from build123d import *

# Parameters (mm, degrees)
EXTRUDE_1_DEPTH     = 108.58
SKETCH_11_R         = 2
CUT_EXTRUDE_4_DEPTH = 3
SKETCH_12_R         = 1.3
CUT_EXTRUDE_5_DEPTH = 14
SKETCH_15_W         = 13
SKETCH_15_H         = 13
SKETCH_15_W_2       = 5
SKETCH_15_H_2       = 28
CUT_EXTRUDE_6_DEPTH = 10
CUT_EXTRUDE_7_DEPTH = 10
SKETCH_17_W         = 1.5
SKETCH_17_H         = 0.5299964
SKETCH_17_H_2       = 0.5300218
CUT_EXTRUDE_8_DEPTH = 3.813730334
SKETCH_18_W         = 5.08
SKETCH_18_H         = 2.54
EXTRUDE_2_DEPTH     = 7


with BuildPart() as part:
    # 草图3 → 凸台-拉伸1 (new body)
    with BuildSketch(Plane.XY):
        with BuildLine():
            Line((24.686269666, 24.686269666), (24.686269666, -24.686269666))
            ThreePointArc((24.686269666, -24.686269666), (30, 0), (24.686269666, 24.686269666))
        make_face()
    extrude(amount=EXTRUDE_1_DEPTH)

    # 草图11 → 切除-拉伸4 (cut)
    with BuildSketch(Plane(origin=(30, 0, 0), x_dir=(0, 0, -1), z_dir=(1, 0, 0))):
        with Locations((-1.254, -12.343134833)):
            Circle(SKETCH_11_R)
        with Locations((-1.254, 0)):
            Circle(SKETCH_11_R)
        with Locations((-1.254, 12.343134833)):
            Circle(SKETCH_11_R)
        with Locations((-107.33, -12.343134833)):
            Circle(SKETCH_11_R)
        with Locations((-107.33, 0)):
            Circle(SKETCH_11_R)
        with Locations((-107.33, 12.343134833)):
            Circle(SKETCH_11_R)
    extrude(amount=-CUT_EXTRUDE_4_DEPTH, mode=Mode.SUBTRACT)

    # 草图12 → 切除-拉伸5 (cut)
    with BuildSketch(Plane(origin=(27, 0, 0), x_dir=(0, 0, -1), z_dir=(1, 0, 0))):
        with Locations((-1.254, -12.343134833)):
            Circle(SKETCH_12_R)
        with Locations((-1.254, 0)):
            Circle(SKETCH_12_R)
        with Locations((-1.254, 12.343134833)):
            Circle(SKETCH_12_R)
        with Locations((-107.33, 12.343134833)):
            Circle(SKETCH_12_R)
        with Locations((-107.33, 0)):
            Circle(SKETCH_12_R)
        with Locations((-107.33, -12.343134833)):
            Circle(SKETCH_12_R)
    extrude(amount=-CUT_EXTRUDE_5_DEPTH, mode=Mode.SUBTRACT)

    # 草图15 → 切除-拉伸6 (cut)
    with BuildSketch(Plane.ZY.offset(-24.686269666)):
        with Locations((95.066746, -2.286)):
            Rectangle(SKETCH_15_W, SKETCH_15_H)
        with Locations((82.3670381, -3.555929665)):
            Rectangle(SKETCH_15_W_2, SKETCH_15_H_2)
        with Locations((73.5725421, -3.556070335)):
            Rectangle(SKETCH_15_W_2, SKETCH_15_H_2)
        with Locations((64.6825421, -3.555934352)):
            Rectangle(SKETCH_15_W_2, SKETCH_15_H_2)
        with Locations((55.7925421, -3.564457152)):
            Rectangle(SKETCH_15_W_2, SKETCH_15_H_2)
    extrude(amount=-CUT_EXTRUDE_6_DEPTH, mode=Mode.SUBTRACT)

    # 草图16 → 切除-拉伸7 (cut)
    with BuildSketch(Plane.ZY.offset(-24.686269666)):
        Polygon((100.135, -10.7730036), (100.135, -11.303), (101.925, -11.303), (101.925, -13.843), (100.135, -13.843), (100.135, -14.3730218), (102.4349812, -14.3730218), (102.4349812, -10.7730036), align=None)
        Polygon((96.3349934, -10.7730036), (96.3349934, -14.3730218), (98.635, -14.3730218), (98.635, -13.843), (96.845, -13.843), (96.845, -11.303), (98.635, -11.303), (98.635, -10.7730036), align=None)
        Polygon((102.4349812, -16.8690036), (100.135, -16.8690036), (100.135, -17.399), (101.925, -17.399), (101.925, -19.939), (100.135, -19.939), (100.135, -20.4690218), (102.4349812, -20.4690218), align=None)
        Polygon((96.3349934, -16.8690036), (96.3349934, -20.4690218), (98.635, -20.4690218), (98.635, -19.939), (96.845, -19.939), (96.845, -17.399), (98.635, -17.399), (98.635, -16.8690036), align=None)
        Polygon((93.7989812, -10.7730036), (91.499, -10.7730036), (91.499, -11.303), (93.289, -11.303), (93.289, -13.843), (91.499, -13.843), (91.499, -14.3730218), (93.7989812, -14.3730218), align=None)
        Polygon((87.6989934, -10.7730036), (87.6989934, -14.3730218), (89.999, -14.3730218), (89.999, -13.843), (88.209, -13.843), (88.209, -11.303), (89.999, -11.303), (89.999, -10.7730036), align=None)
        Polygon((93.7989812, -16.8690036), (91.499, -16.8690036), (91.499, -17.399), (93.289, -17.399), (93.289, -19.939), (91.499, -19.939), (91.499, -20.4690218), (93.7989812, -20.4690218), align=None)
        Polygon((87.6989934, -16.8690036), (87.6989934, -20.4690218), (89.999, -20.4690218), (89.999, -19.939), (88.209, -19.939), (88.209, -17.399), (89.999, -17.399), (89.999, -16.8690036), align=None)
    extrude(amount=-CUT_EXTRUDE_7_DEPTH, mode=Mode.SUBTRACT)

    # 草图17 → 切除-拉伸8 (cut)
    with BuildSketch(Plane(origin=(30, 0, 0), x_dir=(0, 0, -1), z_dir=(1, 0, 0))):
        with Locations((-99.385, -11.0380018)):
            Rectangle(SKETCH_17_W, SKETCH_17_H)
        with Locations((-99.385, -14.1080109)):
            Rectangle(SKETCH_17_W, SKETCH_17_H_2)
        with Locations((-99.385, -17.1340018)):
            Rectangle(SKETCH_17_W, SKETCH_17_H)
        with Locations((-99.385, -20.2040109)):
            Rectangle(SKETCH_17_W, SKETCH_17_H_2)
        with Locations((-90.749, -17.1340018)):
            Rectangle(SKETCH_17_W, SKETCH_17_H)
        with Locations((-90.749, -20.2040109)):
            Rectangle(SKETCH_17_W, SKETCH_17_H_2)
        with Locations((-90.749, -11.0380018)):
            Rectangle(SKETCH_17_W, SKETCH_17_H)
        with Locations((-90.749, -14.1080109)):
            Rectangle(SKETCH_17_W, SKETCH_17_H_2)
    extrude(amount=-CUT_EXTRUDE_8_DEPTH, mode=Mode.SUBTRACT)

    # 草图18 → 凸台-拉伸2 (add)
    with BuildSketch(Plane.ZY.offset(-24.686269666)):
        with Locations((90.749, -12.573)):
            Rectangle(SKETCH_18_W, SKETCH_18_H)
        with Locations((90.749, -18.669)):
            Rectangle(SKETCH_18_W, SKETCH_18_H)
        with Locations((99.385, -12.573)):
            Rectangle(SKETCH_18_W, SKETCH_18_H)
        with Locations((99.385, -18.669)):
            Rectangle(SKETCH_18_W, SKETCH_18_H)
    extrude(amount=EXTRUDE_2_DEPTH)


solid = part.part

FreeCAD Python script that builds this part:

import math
import FreeCAD as App
import Part
import Sketcher

V = App.Vector
Q = App.Units.Quantity


def add_polygon(sketch, points):
    """Adds a closed chain of lines whose ends are joined by coincident constraints."""
    first, n = sketch.GeometryCount, len(points)
    for a, b in zip(points, points[1:] + points[:1]):
        sketch.addGeometry(Part.LineSegment(App.Vector(*a, 0), App.Vector(*b, 0)), False)
    for i in range(n):
        sketch.addConstraint(Sketcher.Constraint("Coincident", first + i, 2, first + (i + 1) % n, 1))

doc = App.newDocument("Part")
params = doc.addObject("Spreadsheet::Sheet", "Params")
for row, (alias, value) in enumerate([
    ("sketch1_radius", "60 mm"),
    ("pad1_length", "108.58 mm"),
    ("sketch2_diameter", "4 mm"),
    ("pocket1_length", "3 mm"),
    ("sketch3_diameter", "2.6 mm"),
    ("pocket2_length", "14 mm"),
    ("sketch4_width", "13 mm"),
    ("sketch4_width2", "28 mm"),
    ("sketch4_height", "5 mm"),
    ("pocket3_length", "10 mm"),
    ("sketch5_width", "2.54 mm"),
    ("sketch5_height", "1.79 mm"),
    ("pocket4_length", "10 mm"),
    ("sketch6_height", "1.5 mm"),
    ("pocket5_length", "3.81373 mm"),
    ("sketch7_width", "2.54 mm"),
    ("sketch7_height", "5.08 mm"),
    ("pad2_length", "7 mm"),
], start=1):
    params.set(f"A{row}", alias)
    params.set(f"B{row}", "=" + value)
    params.setAlias(f"B{row}", alias)

body = doc.addObject("PartDesign::Body", "Body")

sketch1 = body.newObject("Sketcher::SketchObject", "Sketch")
sketch1.AttachmentSupport = (doc.getObject("XY_Plane"), [""])
sketch1.MapMode = "FlatFace"
sketch1.addGeometry(Part.LineSegment(V(25, 25, 0), V(25, -25, 0)), False)
sketch1.addGeometry(Part.ArcOfCircle(Part.Circle(V(-30, 0, 0), V(0, 0, 1), 60), math.radians(-24), math.radians(24)), False)
sketch1.addConstraint(Sketcher.Constraint("Coincident", 0, 1, 1, 2))
sketch1.addConstraint(Sketcher.Constraint("Coincident", 1, 1, 0, 2))
sketch1.addConstraint(Sketcher.Constraint("Vertical", 0))
sketch1.addConstraint(Sketcher.Constraint("PointOnObject", 1, 3, -1))
sketch1.addConstraint(Sketcher.Constraint("Radius", 1, Q("60 mm")))
sketch1.addConstraint(Sketcher.Constraint("DistanceX", 1, 3, -1, 1, Q("30 mm")))
sketch1.addConstraint(Sketcher.Constraint("DistanceY", 0, 2, 0, 1, Q("49.372539 mm")))
sketch1.setExpression("Constraints[4]", "Params.sketch1_radius")
pad1 = body.newObject("PartDesign::Pad", "Pad")
pad1.Profile = sketch1
pad1.setExpression("Length", "Params.pad1_length")

sketch2 = body.newObject("Sketcher::SketchObject", "Sketch001")
sketch2.AttachmentSupport = (doc.getObject("YZ_Plane"), [""])
sketch2.MapMode = "FlatFace"
sketch2.AttachmentOffset = App.Placement(V(0, 0, 30), App.Rotation())
sketch2.addGeometry(Part.Circle(V(-12.3, 1.3, 0), V(0, 0, 1), 2), False)
sketch2.addGeometry(Part.Circle(V(0, 1.3, 0), V(0, 0, 1), 2), False)
sketch2.addGeometry(Part.Circle(V(12.3, 1.3, 0), V(0, 0, 1), 2), False)
sketch2.addGeometry(Part.Circle(V(-12.3, 107.3, 0), V(0, 0, 1), 2), False)
sketch2.addGeometry(Part.Circle(V(0, 107.3, 0), V(0, 0, 1), 2), False)
sketch2.addGeometry(Part.Circle(V(12.3, 107.3, 0), V(0, 0, 1), 2), False)
sketch2.addConstraint(Sketcher.Constraint("Equal", 0, 1))
sketch2.addConstraint(Sketcher.Constraint("Equal", 1, 2))
sketch2.addConstraint(Sketcher.Constraint("Equal", 2, 3))
sketch2.addConstraint(Sketcher.Constraint("Equal", 3, 4))
sketch2.addConstraint(Sketcher.Constraint("Equal", 4, 5))
sketch2.addConstraint(Sketcher.Constraint("Symmetric", 0, 3, 2, 3, -2))
sketch2.addConstraint(Sketcher.Constraint("Symmetric", 3, 3, 5, 3, -2))
sketch2.addConstraint(Sketcher.Constraint("PointOnObject", 1, 3, -2))
sketch2.addConstraint(Sketcher.Constraint("PointOnObject", 4, 3, -2))
sketch2.addConstraint(Sketcher.Constraint("Horizontal", 0, 3, 1, 3))
sketch2.addConstraint(Sketcher.Constraint("Horizontal", 3, 3, 4, 3))
sketch2.addConstraint(Sketcher.Constraint("Vertical", 0, 3, 3, 3))
sketch2.addConstraint(Sketcher.Constraint("Diameter", 0, Q("4 mm")))
sketch2.addConstraint(Sketcher.Constraint("DistanceY", -1, 1, 3, 3, Q("107.33 mm")))
sketch2.addConstraint(Sketcher.Constraint("DistanceY", -1, 1, 0, 3, Q("1.254 mm")))
sketch2.addConstraint(Sketcher.Constraint("DistanceX", 0, 3, 2, 3, Q("24.68627 mm")))
sketch2.setExpression("Constraints[12]", "Params.sketch2_diameter")
pocket1 = body.newObject("PartDesign::Pocket", "Pocket")
pocket1.Profile = sketch2
pocket1.setExpression("Length", "Params.pocket1_length")

sketch3 = body.newObject("Sketcher::SketchObject", "Sketch002")
sketch3.AttachmentSupport = (doc.getObject("YZ_Plane"), [""])
sketch3.MapMode = "FlatFace"
sketch3.AttachmentOffset = App.Placement(V(0, 0, 27), App.Rotation())
sketch3.addGeometry(Part.Circle(V(-12.3, 1.3, 0), V(0, 0, 1), 1.3), False)
sketch3.addGeometry(Part.Circle(V(0, 1.3, 0), V(0, 0, 1), 1.3), False)
sketch3.addGeometry(Part.Circle(V(12.3, 1.3, 0), V(0, 0, 1), 1.3), False)
sketch3.addGeometry(Part.Circle(V(12.3, 107.3, 0), V(0, 0, 1), 1.3), False)
sketch3.addGeometry(Part.Circle(V(0, 107.3, 0), V(0, 0, 1), 1.3), False)
sketch3.addGeometry(Part.Circle(V(-12.3, 107.3, 0), V(0, 0, 1), 1.3), False)
sketch3.addConstraint(Sketcher.Constraint("Equal", 0, 1))
sketch3.addConstraint(Sketcher.Constraint("Equal", 1, 2))
sketch3.addConstraint(Sketcher.Constraint("Equal", 2, 3))
sketch3.addConstraint(Sketcher.Constraint("Equal", 3, 4))
sketch3.addConstraint(Sketcher.Constraint("Equal", 4, 5))
sketch3.addConstraint(Sketcher.Constraint("Symmetric", 0, 3, 2, 3, -2))
sketch3.addConstraint(Sketcher.Constraint("Symmetric", 3, 3, 5, 3, -2))
sketch3.addConstraint(Sketcher.Constraint("PointOnObject", 1, 3, -2))
sketch3.addConstraint(Sketcher.Constraint("PointOnObject", 4, 3, -2))
sketch3.addConstraint(Sketcher.Constraint("Horizontal", 0, 3, 1, 3))
sketch3.addConstraint(Sketcher.Constraint("Horizontal", 3, 3, 4, 3))
sketch3.addConstraint(Sketcher.Constraint("Vertical", 2, 3, 3, 3))
sketch3.addConstraint(Sketcher.Constraint("Diameter", 0, Q("2.6 mm")))
sketch3.addConstraint(Sketcher.Constraint("DistanceY", -1, 1, 3, 3, Q("107.33 mm")))
sketch3.addConstraint(Sketcher.Constraint("DistanceY", -1, 1, 0, 3, Q("1.254 mm")))
sketch3.addConstraint(Sketcher.Constraint("DistanceX", 0, 3, 2, 3, Q("24.68627 mm")))
sketch3.setExpression("Constraints[12]", "Params.sketch3_diameter")
pocket2 = body.newObject("PartDesign::Pocket", "Pocket001")
pocket2.Profile = sketch3
pocket2.setExpression("Length", "Params.pocket2_length")

sketch4 = body.newObject("Sketcher::SketchObject", "Sketch003")
sketch4.AttachmentSupport = (doc.getObject("YZ_Plane"), [""])
sketch4.MapMode = "FlatFace"
sketch4.AttachmentOffset = App.Placement(V(0, 0, 24.68627), App.Rotation())
add_polygon(sketch4, [(4, 89), (-9, 89), (-9, 102), (4, 102)])
add_polygon(sketch4, [(10, 80), (-18, 80), (-18, 85), (10, 85)])
add_polygon(sketch4, [(10, 71), (-18, 71), (-18, 76), (10, 76)])
add_polygon(sketch4, [(10, 62), (-18, 62), (-18, 67), (10, 67)])
add_polygon(sketch4, [(10, 53), (-18, 53), (-18, 58), (10, 58)])
sketch4.addConstraint(Sketcher.Constraint("Horizontal", 0))
sketch4.addConstraint(Sketcher.Constraint("Vertical", 1))
sketch4.addConstraint(Sketcher.Constraint("Horizontal", 2))
sketch4.addConstraint(Sketcher.Constraint("Vertical", 3))
sketch4.addConstraint(Sketcher.Constraint("Horizontal", 4))
sketch4.addConstraint(Sketcher.Constraint("Vertical", 5))
sketch4.addConstraint(Sketcher.Constraint("Horizontal", 6))
sketch4.addConstraint(Sketcher.Constraint("Vertical", 7))
sketch4.addConstraint(Sketcher.Constraint("Horizontal", 8))
sketch4.addConstraint(Sketcher.Constraint("Vertical", 9))
sketch4.addConstraint(Sketcher.Constraint("Horizontal", 10))
sketch4.addConstraint(Sketcher.Constraint("Vertical", 11))
sketch4.addConstraint(Sketcher.Constraint("Horizontal", 12))
sketch4.addConstraint(Sketcher.Constraint("Vertical", 13))
sketch4.addConstraint(Sketcher.Constraint("Horizontal", 14))
sketch4.addConstraint(Sketcher.Constraint("Vertical", 15))
sketch4.addConstraint(Sketcher.Constraint("Horizontal", 16))
sketch4.addConstraint(Sketcher.Constraint("Vertical", 17))
sketch4.addConstraint(Sketcher.Constraint("Horizontal", 18))
sketch4.addConstraint(Sketcher.Constraint("Vertical", 19))
sketch4.addConstraint(Sketcher.Constraint("Equal", 6, 8))
sketch4.addConstraint(Sketcher.Constraint("Equal", 10, 12))
sketch4.addConstraint(Sketcher.Constraint("Equal", 14, 16))
sketch4.addConstraint(Sketcher.Constraint("Equal", 2, 1))
sketch4.addConstraint(Sketcher.Constraint("Equal", 7, 9))
sketch4.addConstraint(Sketcher.Constraint("Equal", 11, 13))
sketch4.addConstraint(Sketcher.Constraint("Equal", 15, 17))
sketch4.addConstraint(Sketcher.Constraint("DistanceX", 0, 2, 0, 1, Q("13 mm")))
sketch4.addConstraint(Sketcher.Constraint("DistanceX", 4, 2, 4, 1, Q("28 mm")))
sketch4.addConstraint(Sketcher.Constraint("DistanceY", 5, 1, 5, 2, Q("5 mm")))
sketch4.addConstraint(Sketcher.Constraint("DistanceY", 12, 2, 8, 2, Q("8.89 mm")))
sketch4.addConstraint(Sketcher.Constraint("DistanceY", 16, 2, 12, 2, Q("8.89 mm")))
sketch4.addConstraint(Sketcher.Constraint("DistanceX", 0, 2, -1, 1, Q("8.786 mm")))
sketch4.addConstraint(Sketcher.Constraint("DistanceX", 4, 2, -1, 1, Q("17.55593 mm")))
sketch4.addConstraint(Sketcher.Constraint("DistanceY", -1, 1, 4, 2, Q("79.867038 mm")))
sketch4.addConstraint(Sketcher.Constraint("DistanceX", 8, 2, -1, 1, Q("17.55607 mm")))
sketch4.addConstraint(Sketcher.Constraint("DistanceY", -1, 1, 0, 2, Q("88.566746 mm")))
sketch4.addConstraint(Sketcher.Constraint("DistanceY", -1, 1, 8, 2, Q("71.072542 mm")))
sketch4.addConstraint(Sketcher.Constraint("DistanceX", 12, 2, -1, 1, Q("17.555934 mm")))
sketch4.addConstraint(Sketcher.Constraint("DistanceX", 16, 2, -1, 1, Q("17.564457 mm")))
sketch4.setExpression("Constraints[47]", "Params.sketch4_width")
sketch4.setExpression("Constraints[48]", "Params.sketch4_width2")
sketch4.setExpression("Constraints[49]", "Params.sketch4_height")
pocket3 = body.newObject("PartDesign::Pocket", "Pocket002")
pocket3.Profile = sketch4
pocket3.setExpression("Length", "Params.pocket3_length")
pocket3.Reversed = True

sketch5 = body.newObject("Sketcher::SketchObject", "Sketch004")
sketch5.AttachmentSupport = (doc.getObject("YZ_Plane"), [""])
sketch5.MapMode = "FlatFace"
sketch5.AttachmentOffset = App.Placement(V(0, 0, 24.68627), App.Rotation())
add_polygon(sketch5, [(-10.8, 100.1), (-11.3, 100.1), (-11.3, 101.9), (-13.8, 101.9), (-13.8, 100.1), (-14.4, 100.1), (-14.4, 102.4), (-10.8, 102.4)])
add_polygon(sketch5, [(-10.8, 96.3), (-14.4, 96.3), (-14.4, 98.6), (-13.8, 98.6), (-13.8, 96.8), (-11.3, 96.8), (-11.3, 98.6), (-10.8, 98.6)])
add_polygon(sketch5, [(-16.9, 102.4), (-16.9, 100.1), (-17.4, 100.1), (-17.4, 101.9), (-19.9, 101.9), (-19.9, 100.1), (-20.5, 100.1), (-20.5, 102.4)])
add_polygon(sketch5, [(-16.9, 96.3), (-20.5, 96.3), (-20.5, 98.6), (-19.9, 98.6), (-19.9, 96.8), (-17.4, 96.8), (-17.4, 98.6), (-16.9, 98.6)])
add_polygon(sketch5, [(-10.8, 93.8), (-10.8, 91.5), (-11.3, 91.5), (-11.3, 93.3), (-13.8, 93.3), (-13.8, 91.5), (-14.4, 91.5), (-14.4, 93.8)])
add_polygon(sketch5, [(-10.8, 87.7), (-14.4, 87.7), (-14.4, 90), (-13.8, 90), (-13.8, 88.2), (-11.3, 88.2), (-11.3, 90), (-10.8, 90)])
add_polygon(sketch5, [(-16.9, 93.8), (-16.9, 91.5), (-17.4, 91.5), (-17.4, 93.3), (-19.9, 93.3), (-19.9, 91.5), (-20.5, 91.5), (-20.5, 93.8)])
add_polygon(sketch5, [(-16.9, 87.7), (-20.5, 87.7), (-20.5, 90), (-19.9, 90), (-19.9, 88.2), (-17.4, 88.2), (-17.4, 90), (-16.9, 90)])
sketch5.addConstraint(Sketcher.Constraint("Horizontal", 0))
sketch5.addConstraint(Sketcher.Constraint("Vertical", 1))
sketch5.addConstraint(Sketcher.Constraint("Horizontal", 2))
sketch5.addConstraint(Sketcher.Constraint("Vertical", 3))
sketch5.addConstraint(Sketcher.Constraint("Horizontal", 4))
sketch5.addConstraint(Sketcher.Constraint("Vertical", 5))
sketch5.addConstraint(Sketcher.Constraint("Horizontal", 6))
sketch5.addConstraint(Sketcher.Constraint("Vertical", 7))
sketch5.addConstraint(Sketcher.Constraint("Horizontal", 8))
sketch5.addConstraint(Sketcher.Constraint("Vertical", 9))
sketch5.addConstraint(Sketcher.Constraint("Horizontal", 10))
sketch5.addConstraint(Sketcher.Constraint("Vertical", 11))
sketch5.addConstraint(Sketcher.Constraint("Horizontal", 12))
sketch5.addConstraint(Sketcher.Constraint("Vertical", 13))
sketch5.addConstraint(Sketcher.Constraint("Horizontal", 14))
sketch5.addConstraint(Sketcher.Constraint("Vertical", 15))
sketch5.addConstraint(Sketcher.Constraint("Vertical", 16))
sketch5.addConstraint(Sketcher.Constraint("Horizontal", 17))
sketch5.addConstraint(Sketcher.Constraint("Vertical", 18))
sketch5.addConstraint(Sketcher.Constraint("Horizontal", 19))
sketch5.addConstraint(Sketcher.Constraint("Vertical", 20))
sketch5.addConstraint(Sketcher.Constraint("Horizontal", 21))
sketch5.addConstraint(Sketcher.Constraint("Vertical", 22))
sketch5.addConstraint(Sketcher.Constraint("Horizontal", 23))
sketch5.addConstraint(Sketcher.Constraint("Horizontal", 24))
sketch5.addConstraint(Sketcher.Constraint("Vertical", 25))
sketch5.addConstraint(Sketcher.Constraint("Horizontal", 26))
sketch5.addConstraint(Sketcher.Constraint("Vertical", 27))
sketch5.addConstraint(Sketcher.Constraint("Horizontal", 28))
sketch5.addConstraint(Sketcher.Constraint("Vertical", 29))
sketch5.addConstraint(Sketcher.Constraint("Horizontal", 30))
sketch5.addConstraint(Sketcher.Constraint("Vertical", 31))
sketch5.addConstraint(Sketcher.Constraint("Vertical", 32))
sketch5.addConstraint(Sketcher.Constraint("Horizontal", 33))
sketch5.addConstraint(Sketcher.Constraint("Vertical", 34))
sketch5.addConstraint(Sketcher.Constraint("Horizontal", 35))
sketch5.addConstraint(Sketcher.Constraint("Vertical", 36))
sketch5.addConstraint(Sketcher.Constraint("Horizontal", 37))
sketch5.addConstraint(Sketcher.Constraint("Vertical", 38))
sketch5.addConstraint(Sketcher.Constraint("Horizontal", 39))
sketch5.addConstraint(Sketcher.Constraint("Horizontal", 40))
sketch5.addConstraint(Sketcher.Constraint("Vertical", 41))
sketch5.addConstraint(Sketcher.Constraint("Horizontal", 42))
sketch5.addConstraint(Sketcher.Constraint("Vertical", 43))
sketch5.addConstraint(Sketcher.Constraint("Horizontal", 44))
sketch5.addConstraint(Sketcher.Constraint("Vertical", 45))
sketch5.addConstraint(Sketcher.Constraint("Horizontal", 46))
sketch5.addConstraint(Sketcher.Constraint("Vertical", 47))
sketch5.addConstraint(Sketcher.Constraint("Vertical", 48))
sketch5.addConstraint(Sketcher.Constraint("Horizontal", 49))
sketch5.addConstraint(Sketcher.Constraint("Vertical", 50))
sketch5.addConstraint(Sketcher.Constraint("Horizontal", 51))
sketch5.addConstraint(Sketcher.Constraint("Vertical", 52))
sketch5.addConstraint(Sketcher.Constraint("Horizontal", 53))
sketch5.addConstraint(Sketcher.Constraint("Vertical", 54))
sketch5.addConstraint(Sketcher.Constraint("Horizontal", 55))
sketch5.addConstraint(Sketcher.Constraint("Horizontal", 56))
sketch5.addConstraint(Sketcher.Constraint("Vertical", 57))
sketch5.addConstraint(Sketcher.Constraint("Horizontal", 58))
sketch5.addConstraint(Sketcher.Constraint("Vertical", 59))
sketch5.addConstraint(Sketcher.Constraint("Horizontal", 60))
sketch5.addConstraint(Sketcher.Constraint("Vertical", 61))
sketch5.addConstraint(Sketcher.Constraint("Horizontal", 62))
sketch5.addConstraint(Sketcher.Constraint("Vertical", 63))
sketch5.addConstraint(Sketcher.Constraint("Horizontal", 0, 2, 3, 2))
sketch5.addConstraint(Sketcher.Constraint("Horizontal", 10, 2, 13, 2))
sketch5.addConstraint(Sketcher.Constraint("Horizontal", 7, 2, 16, 2))
sketch5.addConstraint(Sketcher.Constraint("Horizontal", 2, 2, 18, 2))
sketch5.addConstraint(Sketcher.Constraint("Horizontal", 17, 2, 20, 2))
sketch5.addConstraint(Sketcher.Constraint("Horizontal", 6, 2, 22, 2))
sketch5.addConstraint(Sketcher.Constraint("Horizontal", 15, 2, 24, 2))
sketch5.addConstraint(Sketcher.Constraint("Horizontal", 14, 2, 25, 2))
sketch5.addConstraint(Sketcher.Constraint("Horizontal", 12, 2, 27, 2))
sketch5.addConstraint(Sketcher.Constraint("Horizontal", 26, 2, 29, 2))
sketch5.addConstraint(Sketcher.Constraint("Horizontal", 33, 2, 36, 2))
sketch5.addConstraint(Sketcher.Constraint("Horizontal", 42, 2, 45, 2))
sketch5.addConstraint(Sketcher.Constraint("Horizontal", 37, 2, 48, 2))
sketch5.addConstraint(Sketcher.Constraint("Horizontal", 35, 2, 50, 2))
sketch5.addConstraint(Sketcher.Constraint("Horizontal", 49, 2, 52, 2))
sketch5.addConstraint(Sketcher.Constraint("Horizontal", 39, 2, 54, 2))
sketch5.addConstraint(Sketcher.Constraint("Horizontal", 47, 2, 56, 2))
sketch5.addConstraint(Sketcher.Constraint("Horizontal", 46, 2, 57, 2))
sketch5.addConstraint(Sketcher.Constraint("Horizontal", 44, 2, 59, 2))
sketch5.addConstraint(Sketcher.Constraint("Horizontal", 58, 2, 61, 2))
sketch5.addConstraint(Sketcher.Constraint("Vertical", 5, 2, 8, 2))
sketch5.addConstraint(Sketcher.Constraint("Vertical", 3, 2, 10, 2))
sketch5.addConstraint(Sketcher.Constraint("Vertical", 1, 2, 12, 2))
sketch5.addConstraint(Sketcher.Constraint("Vertical", 7, 2, 14, 2))
sketch5.addConstraint(Sketcher.Constraint("Vertical", 22, 2, 24, 2))
sketch5.addConstraint(Sketcher.Constraint("Vertical", 20, 2, 26, 2))
sketch5.addConstraint(Sketcher.Constraint("Vertical", 18, 2, 28, 2))
sketch5.addConstraint(Sketcher.Constraint("Vertical", 23, 2, 30, 2))
sketch5.addConstraint(Sketcher.Constraint("Vertical", 15, 2, 32, 2))
sketch5.addConstraint(Sketcher.Constraint("Vertical", 13, 2, 33, 2))
sketch5.addConstraint(Sketcher.Constraint("Vertical", 11, 2, 35, 2))
sketch5.addConstraint(Sketcher.Constraint("Vertical", 9, 2, 37, 2))
sketch5.addConstraint(Sketcher.Constraint("Vertical", 38, 2, 40, 2))
sketch5.addConstraint(Sketcher.Constraint("Vertical", 36, 2, 42, 2))
sketch5.addConstraint(Sketcher.Constraint("Vertical", 34, 2, 44, 2))
sketch5.addConstraint(Sketcher.Constraint("Vertical", 39, 2, 46, 2))
sketch5.addConstraint(Sketcher.Constraint("Vertical", 31, 2, 48, 2))
sketch5.addConstraint(Sketcher.Constraint("Vertical", 29, 2, 49, 2))
sketch5.addConstraint(Sketcher.Constraint("Vertical", 27, 2, 51, 2))
sketch5.addConstraint(Sketcher.Constraint("Vertical", 25, 2, 53, 2))
sketch5.addConstraint(Sketcher.Constraint("Vertical", 54, 2, 56, 2))
sketch5.addConstraint(Sketcher.Constraint("Vertical", 52, 2, 58, 2))
sketch5.addConstraint(Sketcher.Constraint("Vertical", 50, 2, 60, 2))
sketch5.addConstraint(Sketcher.Constraint("Vertical", 55, 2, 62, 2))
sketch5.addConstraint(Sketcher.Constraint("Equal", 14, 17))
sketch5.addConstraint(Sketcher.Constraint("Equal", 12, 19))
sketch5.addConstraint(Sketcher.Constraint("Equal", 10, 21))
sketch5.addConstraint(Sketcher.Constraint("Equal", 3, 11))
sketch5.addConstraint(Sketcher.Constraint("Equal", 22, 32))
sketch5.addConstraint(Sketcher.Constraint("Equal", 29, 34))
sketch5.addConstraint(Sketcher.Constraint("Equal", 31, 41))
sketch5.addConstraint(Sketcher.Constraint("Equal", 36, 43))
sketch5.addConstraint(Sketcher.Constraint("DistanceX", 2, 2, 2, 1, Q("2.54 mm")))
sketch5.addConstraint(Sketcher.Constraint("DistanceY", 1, 1, 1, 2, Q("1.79 mm")))
sketch5.addConstraint(Sketcher.Constraint("DistanceX", 0, 2, -1, 1, Q("11.303 mm")))
sketch5.addConstraint(Sketcher.Constraint("DistanceY", -1, 1, 0, 2, Q("100.135 mm")))
sketch5.addConstraint(Sketcher.Constraint("DistanceY", -1, 1, 9, 2, Q("98.635 mm")))
sketch5.addConstraint(Sketcher.Constraint("DistanceX", 17, 2, -1, 1, Q("17.399 mm")))
sketch5.addConstraint(Sketcher.Constraint("DistanceY", -1, 1, 32, 2, Q("91.499 mm")))
sketch5.addConstraint(Sketcher.Constraint("DistanceY", -1, 1, 41, 2, Q("89.999 mm")))
sketch5.addConstraint(Sketcher.Constraint("DistanceX", 4, 2, 4, 1, Q("0.530022 mm")))
sketch5.addConstraint(Sketcher.Constraint("DistanceX", 6, 1, 6, 2, Q("3.600018 mm")))
sketch5.addConstraint(Sketcher.Constraint("DistanceY", 5, 1, 5, 2, Q("2.299981 mm")))
sketch5.addConstraint(Sketcher.Constraint("DistanceY", 9, 1, 9, 2, Q("2.300007 mm")))
sketch5.setExpression("Constraints[180]", "Params.sketch5_width")
sketch5.setExpression("Constraints[181]", "Params.sketch5_height")
pocket4 = body.newObject("PartDesign::Pocket", "Pocket003")
pocket4.Profile = sketch5
pocket4.setExpression("Length", "Params.pocket4_length")
pocket4.Reversed = True

sketch6 = body.newObject("Sketcher::SketchObject", "Sketch005")
sketch6.AttachmentSupport = (doc.getObject("YZ_Plane"), [""])
sketch6.MapMode = "FlatFace"
sketch6.AttachmentOffset = App.Placement(V(0, 0, 30), App.Rotation())
add_polygon(sketch6, [(-10.8, 100.1), (-11.3, 100.1), (-11.3, 98.6), (-10.8, 98.6)])
add_polygon(sketch6, [(-13.8, 100.1), (-14.4, 100.1), (-14.4, 98.6), (-13.8, 98.6)])
add_polygon(sketch6, [(-16.9, 100.1), (-17.4, 100.1), (-17.4, 98.6), (-16.9, 98.6)])
add_polygon(sketch6, [(-19.9, 100.1), (-20.5, 100.1), (-20.5, 98.6), (-19.9, 98.6)])
add_polygon(sketch6, [(-16.9, 91.5), (-17.4, 91.5), (-17.4, 90), (-16.9, 90)])
add_polygon(sketch6, [(-19.9, 91.5), (-20.5, 91.5), (-20.5, 90), (-19.9, 90)])
add_polygon(sketch6, [(-10.8, 91.5), (-11.3, 91.5), (-11.3, 90), (-10.8, 90)])
add_polygon(sketch6, [(-13.8, 91.5), (-14.4, 91.5), (-14.4, 90), (-13.8, 90)])
sketch6.addConstraint(Sketcher.Constraint("Horizontal", 0))
sketch6.addConstraint(Sketcher.Constraint("Vertical", 1))
sketch6.addConstraint(Sketcher.Constraint("Horizontal", 2))
sketch6.addConstraint(Sketcher.Constraint("Vertical", 3))
sketch6.addConstraint(Sketcher.Constraint("Horizontal", 4))
sketch6.addConstraint(Sketcher.Constraint("Vertical", 5))
sketch6.addConstraint(Sketcher.Constraint("Horizontal", 6))
sketch6.addConstraint(Sketcher.Constraint("Vertical", 7))
sketch6.addConstraint(Sketcher.Constraint("Horizontal", 8))
sketch6.addConstraint(Sketcher.Constraint("Vertical", 9))
sketch6.addConstraint(Sketcher.Constraint("Horizontal", 10))
sketch6.addConstraint(Sketcher.Constraint("Vertical", 11))
sketch6.addConstraint(Sketcher.Constraint("Horizontal", 12))
sketch6.addConstraint(Sketcher.Constraint("Vertical", 13))
sketch6.addConstraint(Sketcher.Constraint("Horizontal", 14))
sketch6.addConstraint(Sketcher.Constraint("Vertical", 15))
sketch6.addConstraint(Sketcher.Constraint("Horizontal", 16))
sketch6.addConstraint(Sketcher.Constraint("Vertical", 17))
sketch6.addConstraint(Sketcher.Constraint("Horizontal", 18))
sketch6.addConstraint(Sketcher.Constraint("Vertical", 19))
sketch6.addConstraint(Sketcher.Constraint("Horizontal", 20))
sketch6.addConstraint(Sketcher.Constraint("Vertical", 21))
sketch6.addConstraint(Sketcher.Constraint("Horizontal", 22))
sketch6.addConstraint(Sketcher.Constraint("Vertical", 23))
sketch6.addConstraint(Sketcher.Constraint("Horizontal", 24))
sketch6.addConstraint(Sketcher.Constraint("Vertical", 25))
sketch6.addConstraint(Sketcher.Constraint("Horizontal", 26))
sketch6.addConstraint(Sketcher.Constraint("Vertical", 27))
sketch6.addConstraint(Sketcher.Constraint("Horizontal", 28))
sketch6.addConstraint(Sketcher.Constraint("Vertical", 29))
sketch6.addConstraint(Sketcher.Constraint("Horizontal", 30))
sketch6.addConstraint(Sketcher.Constraint("Vertical", 31))
sketch6.addConstraint(Sketcher.Constraint("Horizontal", 3, 2, 4, 2))
sketch6.addConstraint(Sketcher.Constraint("Horizontal", 2, 2, 5, 2))
sketch6.addConstraint(Sketcher.Constraint("Horizontal", 7, 2, 8, 2))
sketch6.addConstraint(Sketcher.Constraint("Horizontal", 6, 2, 9, 2))
sketch6.addConstraint(Sketcher.Constraint("Horizontal", 11, 2, 12, 2))
sketch6.addConstraint(Sketcher.Constraint("Horizontal", 10, 2, 13, 2))
sketch6.addConstraint(Sketcher.Constraint("Horizontal", 19, 2, 20, 2))
sketch6.addConstraint(Sketcher.Constraint("Horizontal", 18, 2, 21, 2))
sketch6.addConstraint(Sketcher.Constraint("Horizontal", 23, 2, 24, 2))
sketch6.addConstraint(Sketcher.Constraint("Horizontal", 22, 2, 25, 2))
sketch6.addConstraint(Sketcher.Constraint("Horizontal", 27, 2, 28, 2))
sketch6.addConstraint(Sketcher.Constraint("Horizontal", 26, 2, 29, 2))
sketch6.addConstraint(Sketcher.Constraint("Vertical", 9, 2, 16, 2))
sketch6.addConstraint(Sketcher.Constraint("Vertical", 11, 2, 18, 2))
sketch6.addConstraint(Sketcher.Constraint("Vertical", 13, 2, 20, 2))
sketch6.addConstraint(Sketcher.Constraint("Vertical", 15, 2, 22, 2))
sketch6.addConstraint(Sketcher.Constraint("Vertical", 1, 2, 24, 2))
sketch6.addConstraint(Sketcher.Constraint("Vertical", 3, 2, 26, 2))
sketch6.addConstraint(Sketcher.Constraint("Vertical", 5, 2, 28, 2))
sketch6.addConstraint(Sketcher.Constraint("Vertical", 7, 2, 30, 2))
sketch6.addConstraint(Sketcher.Constraint("Equal", 2, 8))
sketch6.addConstraint(Sketcher.Constraint("Equal", 6, 12))
sketch6.addConstraint(Sketcher.Constraint("Equal", 15, 17))
sketch6.addConstraint(Sketcher.Constraint("DistanceY", 1, 2, 1, 1, Q("1.5 mm")))
sketch6.addConstraint(Sketcher.Constraint("DistanceX", 6, 2, 1, 2, Q("2.54 mm")))
sketch6.addConstraint(Sketcher.Constraint("DistanceX", 14, 2, 9, 2, Q("2.54 mm")))
sketch6.addConstraint(Sketcher.Constraint("DistanceX", 0, 2, -1, 1, Q("11.303 mm")))
sketch6.addConstraint(Sketcher.Constraint("DistanceY", -1, 1, 0, 2, Q("100.135 mm")))
sketch6.addConstraint(Sketcher.Constraint("DistanceX", 8, 2, -1, 1, Q("17.399 mm")))
sketch6.addConstraint(Sketcher.Constraint("DistanceY", -1, 1, 16, 2, Q("91.499 mm")))
sketch6.addConstraint(Sketcher.Constraint("DistanceX", 4, 2, 4, 1, Q("0.530022 mm")))
sketch6.addConstraint(Sketcher.Constraint("DistanceX", 0, 2, 0, 1, Q("0.529996 mm")))
sketch6.setExpression("Constraints[87]", "Params.sketch6_height")
pocket5 = body.newObject("PartDesign::Pocket", "Pocket004")
pocket5.Profile = sketch6
pocket5.setExpression("Length", "Params.pocket5_length")

sketch7 = body.newObject("Sketcher::SketchObject", "Sketch006")
sketch7.AttachmentSupport = (doc.getObject("YZ_Plane"), [""])
sketch7.MapMode = "FlatFace"
sketch7.AttachmentOffset = App.Placement(V(0, 0, 24.68627), App.Rotation())
add_polygon(sketch7, [(-11.3, 88.2), (-13.8, 88.2), (-13.8, 93.3), (-11.3, 93.3)])
add_polygon(sketch7, [(-17.4, 88.2), (-19.9, 88.2), (-19.9, 93.3), (-17.4, 93.3)])
add_polygon(sketch7, [(-11.3, 96.8), (-13.8, 96.8), (-13.8, 101.9), (-11.3, 101.9)])
add_polygon(sketch7, [(-17.4, 96.8), (-19.9, 96.8), (-19.9, 101.9), (-17.4, 101.9)])
sketch7.addConstraint(Sketcher.Constraint("Horizontal", 0))
sketch7.addConstraint(Sketcher.Constraint("Vertical", 1))
sketch7.addConstraint(Sketcher.Constraint("Horizontal", 2))
sketch7.addConstraint(Sketcher.Constraint("Vertical", 3))
sketch7.addConstraint(Sketcher.Constraint("Horizontal", 4))
sketch7.addConstraint(Sketcher.Constraint("Vertical", 5))
sketch7.addConstraint(Sketcher.Constraint("Horizontal", 6))
sketch7.addConstraint(Sketcher.Constraint("Vertical", 7))
sketch7.addConstraint(Sketcher.Constraint("Horizontal", 8))
sketch7.addConstraint(Sketcher.Constraint("Vertical", 9))
sketch7.addConstraint(Sketcher.Constraint("Horizontal", 10))
sketch7.addConstraint(Sketcher.Constraint("Vertical", 11))
sketch7.addConstraint(Sketcher.Constraint("Horizontal", 12))
sketch7.addConstraint(Sketcher.Constraint("Vertical", 13))
sketch7.addConstraint(Sketcher.Constraint("Horizontal", 14))
sketch7.addConstraint(Sketcher.Constraint("Vertical", 15))
sketch7.addConstraint(Sketcher.Constraint("Horizontal", 3, 2, 4, 2))
sketch7.addConstraint(Sketcher.Constraint("Horizontal", 2, 2, 5, 2))
sketch7.addConstraint(Sketcher.Constraint("Horizontal", 11, 2, 12, 2))
sketch7.addConstraint(Sketcher.Constraint("Horizontal", 10, 2, 13, 2))
sketch7.addConstraint(Sketcher.Constraint("Vertical", 1, 2, 8, 2))
sketch7.addConstraint(Sketcher.Constraint("Vertical", 3, 2, 10, 2))
sketch7.addConstraint(Sketcher.Constraint("Vertical", 5, 2, 12, 2))
sketch7.addConstraint(Sketcher.Constraint("Vertical", 7, 2, 14, 2))
sketch7.addConstraint(Sketcher.Constraint("Equal", 2, 4))
sketch7.addConstraint(Sketcher.Constraint("Equal", 7, 9))
sketch7.addConstraint(Sketcher.Constraint("DistanceX", 0, 2, 0, 1, Q("2.54 mm")))
sketch7.addConstraint(Sketcher.Constraint("DistanceY", 1, 1, 1, 2, Q("5.08 mm")))
sketch7.addConstraint(Sketcher.Constraint("DistanceX", 0, 2, -1, 1, Q("13.843 mm")))
sketch7.addConstraint(Sketcher.Constraint("DistanceY", -1, 1, 0, 2, Q("88.209 mm")))
sketch7.addConstraint(Sketcher.Constraint("DistanceX", 4, 2, -1, 1, Q("19.939 mm")))
sketch7.addConstraint(Sketcher.Constraint("DistanceY", -1, 1, 8, 2, Q("96.845 mm")))
sketch7.setExpression("Constraints[42]", "Params.sketch7_width")
sketch7.setExpression("Constraints[43]", "Params.sketch7_height")
pad2 = body.newObject("PartDesign::Pad", "Pad001")
pad2.Profile = sketch7
pad2.setExpression("Length", "Params.pad2_length")
pad2.Reversed = True

doc.recompute()
